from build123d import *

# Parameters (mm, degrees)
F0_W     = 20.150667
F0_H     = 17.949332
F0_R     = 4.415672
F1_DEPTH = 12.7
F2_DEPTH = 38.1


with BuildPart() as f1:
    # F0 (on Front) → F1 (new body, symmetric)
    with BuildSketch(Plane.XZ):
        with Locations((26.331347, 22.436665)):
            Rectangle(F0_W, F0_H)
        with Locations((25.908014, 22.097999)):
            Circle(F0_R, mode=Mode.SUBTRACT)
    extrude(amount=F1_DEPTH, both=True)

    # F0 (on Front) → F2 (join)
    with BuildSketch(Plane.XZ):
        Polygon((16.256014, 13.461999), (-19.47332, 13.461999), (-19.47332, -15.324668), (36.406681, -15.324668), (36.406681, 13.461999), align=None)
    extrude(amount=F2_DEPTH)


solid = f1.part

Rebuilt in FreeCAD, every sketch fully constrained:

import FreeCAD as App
import Part
import Sketcher

V = App.Vector
Q = App.Units.Quantity

doc = App.newDocument("Part")
body = doc.addObject("PartDesign::Body", "Body")

sketch1 = body.newObject("Sketcher::SketchObject", "Sketch")
sketch1.AttachmentSupport = (doc.getObject("XZ_Plane"), [""])
sketch1.MapMode = "FlatFace"
sketch1.addGeometry(Part.LineSegment(V(16.3, 31.4, 0), V(16.3, 13.5, 0)), False)
sketch1.addGeometry(Part.LineSegment(V(16.3, 13.5, 0), V(36.4, 13.5, 0)), False)
sketch1.addGeometry(Part.LineSegment(V(36.4, 13.5, 0), V(36.4, 31.4, 0)), False)
sketch1.addGeometry(Part.LineSegment(V(36.4, 31.4, 0), V(16.3, 31.4, 0)), False)
sketch1.addGeometry(Part.Circle(V(25.9, 22.1, 0), V(0, 0, 1), 4.4), False)
sketch1.addConstraint(Sketcher.Constraint("Coincident", 0, 2, 1, 1))
sketch1.addConstraint(Sketcher.Constraint("Coincident", 1, 2, 2, 1))
sketch1.addConstraint(Sketcher.Constraint("Coincident", 2, 2, 3, 1))
sketch1.addConstraint(Sketcher.Constraint("Coincident", 3, 2, 0, 1))
sketch1.addConstraint(Sketcher.Constraint("Vertical", 0))
sketch1.addConstraint(Sketcher.Constraint("Horizontal", 1))
sketch1.addConstraint(Sketcher.Constraint("Vertical", 2))
sketch1.addConstraint(Sketcher.Constraint("Horizontal", 3))
sketch1.addConstraint(Sketcher.Constraint("DistanceY", -1, 1, 4, 3, Q("0.87 in")))
sketch1.addConstraint(Sketcher.Constraint("DistanceY", -1, 1, 0, 2, Q("0.53 in")))
sketch1.addConstraint(Sketcher.Constraint("DistanceX", 0, 2, 4, 3, Q("0.38 in")))
sketch1.addConstraint(Sketcher.Constraint("Diameter", 4, 8.831344))
sketch1.addConstraint(Sketcher.Constraint("DistanceY", 0, 2, 0, 1, 17.949332))
sketch1.addConstraint(Sketcher.Constraint("DistanceX", 1, 1, 1, 2, 20.150667))
sketch1.addConstraint(Sketcher.Constraint("DistanceX", -1, 1, 1, 2, 36.406681))
pad1 = body.newObject("PartDesign::Pad", "Pad")
pad1.Profile = sketch1
pad1.Length = Q("1 in")
pad1.Midplane = True

sketch2 = body.newObject("Sketcher::SketchObject", "Sketch001")
sketch2.AttachmentSupport = (doc.getObject("XZ_Plane"), [""])
sketch2.MapMode = "FlatFace"
sketch2.addGeometry(Part.LineSegment(V(-19, 13, 0), V(-19, -15, 0)), False)
sketch2.addGeometry(Part.LineSegment(V(-19, -15, 0), V(36, -15, 0)), False)
sketch2.addGeometry(Part.LineSegment(V(36, -15, 0), V(36, 13, 0)), False)
sketch2.addGeometry(Part.LineSegment(V(36, 13, 0), V(-19, 13, 0)), False)
sketch2.addConstraint(Sketcher.Constraint("Coincident", 0, 2, 1, 1))
sketch2.addConstraint(Sketcher.Constraint("Coincident", 1, 2, 2, 1))
sketch2.addConstraint(Sketcher.Constraint("Coincident", 2, 2, 3, 1))
sketch2.addConstraint(Sketcher.Constraint("Coincident", 3, 2, 0, 1))
sketch2.addConstraint(Sketcher.Constraint("Vertical", 0))
sketch2.addConstraint(Sketcher.Constraint("Horizontal", 1))
sketch2.addConstraint(Sketcher.Constraint("Vertical", 2))
sketch2.addConstraint(Sketcher.Constraint("Horizontal", 3))
sketch2.addConstraint(Sketcher.Constraint("DistanceX", 1, 1, 1, 2, Q("2.2 in")))
sketch2.addConstraint(Sketcher.Constraint("DistanceY", -1, 1, 2, 2, Q("0.53 in")))
sketch2.addConstraint(Sketcher.Constraint("DistanceY", 0, 2, 0, 1, 28.786667))
sketch2.addConstraint(Sketcher.Constraint("DistanceX", 0, 2, -1, 1, 19.47332))
pad2 = body.newObject("PartDesign::Pad", "Pad001")
pad2.Profile = sketch2
pad2.Length = Q("1.5 in")

doc.recompute()
